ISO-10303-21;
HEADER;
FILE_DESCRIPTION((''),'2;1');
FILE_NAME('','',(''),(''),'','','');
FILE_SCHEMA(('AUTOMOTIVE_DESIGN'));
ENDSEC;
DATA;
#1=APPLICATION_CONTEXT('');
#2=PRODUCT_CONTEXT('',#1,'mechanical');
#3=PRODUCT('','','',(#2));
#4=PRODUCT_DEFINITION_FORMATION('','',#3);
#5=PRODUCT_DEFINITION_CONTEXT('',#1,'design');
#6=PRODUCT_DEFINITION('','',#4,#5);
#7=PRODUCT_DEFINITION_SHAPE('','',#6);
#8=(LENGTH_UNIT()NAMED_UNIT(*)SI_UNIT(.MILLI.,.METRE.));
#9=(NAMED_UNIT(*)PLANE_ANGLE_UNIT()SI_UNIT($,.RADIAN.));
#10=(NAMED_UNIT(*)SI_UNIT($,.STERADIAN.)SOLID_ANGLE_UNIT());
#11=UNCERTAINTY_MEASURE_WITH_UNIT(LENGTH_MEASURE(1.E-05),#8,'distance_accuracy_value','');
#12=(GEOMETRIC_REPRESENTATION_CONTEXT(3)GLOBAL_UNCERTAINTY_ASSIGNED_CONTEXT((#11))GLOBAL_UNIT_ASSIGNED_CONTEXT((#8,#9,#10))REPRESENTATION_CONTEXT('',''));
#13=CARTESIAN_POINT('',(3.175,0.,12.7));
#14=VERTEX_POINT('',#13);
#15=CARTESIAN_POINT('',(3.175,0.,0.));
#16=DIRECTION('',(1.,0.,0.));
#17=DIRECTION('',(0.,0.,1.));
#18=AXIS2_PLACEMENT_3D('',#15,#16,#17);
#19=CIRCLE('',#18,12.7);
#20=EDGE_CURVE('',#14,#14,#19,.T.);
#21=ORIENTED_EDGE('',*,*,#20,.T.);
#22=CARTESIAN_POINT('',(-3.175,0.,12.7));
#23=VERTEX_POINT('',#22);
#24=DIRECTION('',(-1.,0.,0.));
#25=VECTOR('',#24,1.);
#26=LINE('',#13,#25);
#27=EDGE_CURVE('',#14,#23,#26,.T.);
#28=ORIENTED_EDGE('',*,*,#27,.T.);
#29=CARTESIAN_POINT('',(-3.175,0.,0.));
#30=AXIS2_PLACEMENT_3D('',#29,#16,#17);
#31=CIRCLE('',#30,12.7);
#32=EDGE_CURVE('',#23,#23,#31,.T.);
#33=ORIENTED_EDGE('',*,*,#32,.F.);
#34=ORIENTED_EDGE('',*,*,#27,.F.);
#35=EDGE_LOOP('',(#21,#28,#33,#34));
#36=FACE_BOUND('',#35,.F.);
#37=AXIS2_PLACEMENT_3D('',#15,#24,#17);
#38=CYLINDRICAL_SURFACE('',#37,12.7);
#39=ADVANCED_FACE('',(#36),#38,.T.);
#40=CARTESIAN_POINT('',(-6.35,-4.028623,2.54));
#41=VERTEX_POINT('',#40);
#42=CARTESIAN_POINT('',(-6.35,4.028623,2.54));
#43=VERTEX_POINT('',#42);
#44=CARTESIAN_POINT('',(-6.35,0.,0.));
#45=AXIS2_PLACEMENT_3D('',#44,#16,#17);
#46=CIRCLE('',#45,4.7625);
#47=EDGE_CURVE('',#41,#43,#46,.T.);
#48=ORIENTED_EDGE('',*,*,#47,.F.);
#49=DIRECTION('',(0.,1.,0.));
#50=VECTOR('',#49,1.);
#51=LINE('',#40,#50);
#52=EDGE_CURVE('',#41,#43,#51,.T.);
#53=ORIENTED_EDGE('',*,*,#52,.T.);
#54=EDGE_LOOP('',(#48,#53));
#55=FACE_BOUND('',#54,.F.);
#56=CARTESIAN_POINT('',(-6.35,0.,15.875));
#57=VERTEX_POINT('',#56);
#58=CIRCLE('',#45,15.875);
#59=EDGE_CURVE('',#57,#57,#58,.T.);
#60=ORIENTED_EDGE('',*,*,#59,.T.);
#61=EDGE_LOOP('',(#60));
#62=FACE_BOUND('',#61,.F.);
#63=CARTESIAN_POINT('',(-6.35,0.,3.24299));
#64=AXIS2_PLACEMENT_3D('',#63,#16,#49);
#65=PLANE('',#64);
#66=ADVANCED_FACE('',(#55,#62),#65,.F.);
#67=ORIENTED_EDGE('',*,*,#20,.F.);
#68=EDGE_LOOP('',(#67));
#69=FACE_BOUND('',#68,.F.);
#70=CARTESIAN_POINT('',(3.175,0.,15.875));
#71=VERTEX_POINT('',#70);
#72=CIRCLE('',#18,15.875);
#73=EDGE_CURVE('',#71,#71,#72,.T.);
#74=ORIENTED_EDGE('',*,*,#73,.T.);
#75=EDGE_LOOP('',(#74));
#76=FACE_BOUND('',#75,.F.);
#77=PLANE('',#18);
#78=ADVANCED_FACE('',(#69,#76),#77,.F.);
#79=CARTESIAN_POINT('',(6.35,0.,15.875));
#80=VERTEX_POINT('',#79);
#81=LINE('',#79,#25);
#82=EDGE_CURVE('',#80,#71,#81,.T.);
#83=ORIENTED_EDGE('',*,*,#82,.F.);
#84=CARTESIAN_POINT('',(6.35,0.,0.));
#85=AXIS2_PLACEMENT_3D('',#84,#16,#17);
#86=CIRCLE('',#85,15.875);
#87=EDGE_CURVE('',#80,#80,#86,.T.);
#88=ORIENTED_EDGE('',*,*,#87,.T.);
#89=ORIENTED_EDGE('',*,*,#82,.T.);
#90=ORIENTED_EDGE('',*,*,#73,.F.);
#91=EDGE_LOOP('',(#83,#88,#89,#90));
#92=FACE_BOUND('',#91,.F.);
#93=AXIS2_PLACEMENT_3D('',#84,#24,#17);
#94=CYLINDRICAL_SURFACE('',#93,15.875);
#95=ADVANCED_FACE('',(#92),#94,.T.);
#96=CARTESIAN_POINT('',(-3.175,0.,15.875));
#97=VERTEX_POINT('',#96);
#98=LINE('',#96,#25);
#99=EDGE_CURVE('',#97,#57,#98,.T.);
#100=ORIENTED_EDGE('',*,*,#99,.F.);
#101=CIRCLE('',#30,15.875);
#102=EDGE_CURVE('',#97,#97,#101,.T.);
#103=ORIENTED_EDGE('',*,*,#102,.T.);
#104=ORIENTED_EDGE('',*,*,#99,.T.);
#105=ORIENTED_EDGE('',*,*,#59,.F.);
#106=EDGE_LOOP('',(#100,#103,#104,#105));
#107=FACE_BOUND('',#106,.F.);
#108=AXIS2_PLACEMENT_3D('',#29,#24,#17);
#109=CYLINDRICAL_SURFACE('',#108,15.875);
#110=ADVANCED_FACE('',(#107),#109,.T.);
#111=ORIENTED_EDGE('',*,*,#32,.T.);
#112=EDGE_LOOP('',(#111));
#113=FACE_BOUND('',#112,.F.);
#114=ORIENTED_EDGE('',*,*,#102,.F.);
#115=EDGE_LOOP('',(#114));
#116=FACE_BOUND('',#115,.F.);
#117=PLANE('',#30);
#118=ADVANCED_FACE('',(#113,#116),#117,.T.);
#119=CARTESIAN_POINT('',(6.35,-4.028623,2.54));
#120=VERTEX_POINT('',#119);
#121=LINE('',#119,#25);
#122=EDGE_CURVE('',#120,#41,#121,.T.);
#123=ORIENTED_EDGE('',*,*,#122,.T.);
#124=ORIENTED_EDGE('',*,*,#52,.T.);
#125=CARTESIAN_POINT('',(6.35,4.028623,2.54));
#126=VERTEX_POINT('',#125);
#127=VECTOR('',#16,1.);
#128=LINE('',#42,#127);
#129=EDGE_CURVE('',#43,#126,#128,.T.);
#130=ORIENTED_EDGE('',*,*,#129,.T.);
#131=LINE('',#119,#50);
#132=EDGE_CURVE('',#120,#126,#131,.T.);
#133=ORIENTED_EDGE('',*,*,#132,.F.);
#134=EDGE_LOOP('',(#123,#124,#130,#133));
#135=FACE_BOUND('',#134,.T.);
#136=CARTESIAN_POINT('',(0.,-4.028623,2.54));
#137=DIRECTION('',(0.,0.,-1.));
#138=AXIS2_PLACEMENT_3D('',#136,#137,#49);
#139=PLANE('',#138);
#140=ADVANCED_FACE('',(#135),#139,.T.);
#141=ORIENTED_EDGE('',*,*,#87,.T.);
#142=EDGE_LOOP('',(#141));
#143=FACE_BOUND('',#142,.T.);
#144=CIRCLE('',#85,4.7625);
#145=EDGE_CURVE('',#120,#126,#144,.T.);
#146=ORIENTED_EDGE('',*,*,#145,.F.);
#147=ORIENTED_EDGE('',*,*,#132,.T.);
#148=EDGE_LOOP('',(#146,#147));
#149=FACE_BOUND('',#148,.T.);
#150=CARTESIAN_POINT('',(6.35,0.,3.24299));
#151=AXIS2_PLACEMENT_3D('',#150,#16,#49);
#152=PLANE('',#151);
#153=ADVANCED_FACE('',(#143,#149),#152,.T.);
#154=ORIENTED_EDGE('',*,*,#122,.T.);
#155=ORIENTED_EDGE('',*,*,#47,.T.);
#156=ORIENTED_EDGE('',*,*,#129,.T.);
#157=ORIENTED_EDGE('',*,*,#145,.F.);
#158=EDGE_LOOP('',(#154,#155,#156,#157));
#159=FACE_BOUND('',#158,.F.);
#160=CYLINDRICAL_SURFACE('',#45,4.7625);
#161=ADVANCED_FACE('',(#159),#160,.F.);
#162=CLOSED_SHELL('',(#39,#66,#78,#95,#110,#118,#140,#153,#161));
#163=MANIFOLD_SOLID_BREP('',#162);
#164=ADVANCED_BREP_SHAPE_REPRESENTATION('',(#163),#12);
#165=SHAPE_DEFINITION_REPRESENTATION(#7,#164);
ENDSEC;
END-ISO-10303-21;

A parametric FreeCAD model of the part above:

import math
import FreeCAD as App
import Part
import Sketcher
Q = App.Units.Quantity

doc = App.newDocument("Part")
body = doc.addObject("PartDesign::Body", "Body")

sketch1 = body.newObject("Sketcher::SketchObject", "Sketch")
sketch1.AttachmentSupport = (doc.getObject("XZ_Plane"), [""])
sketch1.MapMode = "FlatFace"
sketch1.addGeometry([
    Part.LineSegment(App.Vector(-6.3, 15.9, 0), App.Vector(-6.3, 4.8, 0)),
    Part.LineSegment(App.Vector(-6.3, 4.8, 0), App.Vector(6.3, 4.8, 0)),
    Part.LineSegment(App.Vector(6.3, 4.8, 0), App.Vector(6.3, 15.9, 0)),
    Part.LineSegment(App.Vector(6.3, 15.9, 0), App.Vector(3.2, 15.9, 0)),
    Part.LineSegment(App.Vector(3.2, 15.9, 0), App.Vector(3.2, 12.7, 0)),
    Part.LineSegment(App.Vector(3.2, 12.7, 0), App.Vector(-3.2, 12.7, 0)),
    Part.LineSegment(App.Vector(-3.2, 12.7, 0), App.Vector(-3.2, 15.9, 0)),
    Part.LineSegment(App.Vector(-3.2, 15.9, 0), App.Vector(-6.3, 15.9, 0)),
], False)
sketch1.addConstraint([
    Sketcher.Constraint("Coincident", 0, 2, 1, 1),
    Sketcher.Constraint("Coincident", 1, 2, 2, 1),
    Sketcher.Constraint("Coincident", 2, 2, 3, 1),
    Sketcher.Constraint("Coincident", 3, 2, 4, 1),
    Sketcher.Constraint("Coincident", 4, 2, 5, 1),
    Sketcher.Constraint("Coincident", 5, 2, 6, 1),
    Sketcher.Constraint("Coincident", 6, 2, 7, 1),
    Sketcher.Constraint("Coincident", 7, 2, 0, 1),
    Sketcher.Constraint("Vertical", 0),
    Sketcher.Constraint("Horizontal", 1),
    Sketcher.Constraint("Vertical", 2),
    Sketcher.Constraint("Horizontal", 3),
    Sketcher.Constraint("Vertical", 4),
    Sketcher.Constraint("Horizontal", 5),
    Sketcher.Constraint("Vertical", 6),
    Sketcher.Constraint("Horizontal", 7),
    Sketcher.Constraint("Symmetric", 3, 2, 6, 2, -2),
    Sketcher.Constraint("Equal", 3, 7),
    Sketcher.Constraint("Equal", 7, 4),
    Sketcher.Constraint("DistanceX", 1, 1, 1, 2, Q("0.5 in")),
    Sketcher.Constraint("DistanceX", 5, 2, 5, 1, Q("0.25 in")),
    Sketcher.Constraint("DistanceY", -1, 1, 4, 2, Q("0.5 in")),
    Sketcher.Constraint("DistanceY", 0, 2, 0, 1, Q("0.4375 in")),
])
revolution = body.newObject("PartDesign::Revolution", "Revolution")
revolution.Profile = sketch1
revolution.ReferenceAxis = (sketch1, ["H_Axis"])
revolution.Angle = 360

sketch2 = body.newObject("Sketcher::SketchObject", "Sketch001")
sketch2.AttachmentSupport = (doc.getObject("YZ_Plane"), [""])
sketch2.MapMode = "FlatFace"
sketch2.addGeometry([
    Part.LineSegment(App.Vector(-4, 2.5, 0), App.Vector(4, 2.5, 0)),
    Part.ArcOfCircle(Part.Circle(App.Vector(0, 0, 0), App.Vector(0, 0, 1), 4.8), math.radians(32), math.radians(148)),
], False)
sketch2.addConstraint([
    Sketcher.Constraint("Coincident", 0, 1, 1, 2),
    Sketcher.Constraint("Coincident", 1, 1, 0, 2),
    Sketcher.Constraint("Horizontal", 0),
    Sketcher.Constraint("Coincident", 1, 3, -1, 1),
    Sketcher.Constraint("Radius", 1, Q("0.1875 in")),
    Sketcher.Constraint("DistanceY", -1, 1, 0, 1, Q("0.1 in")),
])
pad1 = body.newObject("PartDesign::Pad", "Pad")
pad1.Profile = sketch2
pad1.Type = "TwoLengths"
pad1.Length = Q("0.25 in")
pad1.Length2 = Q("0.25 in")

doc.recompute()
